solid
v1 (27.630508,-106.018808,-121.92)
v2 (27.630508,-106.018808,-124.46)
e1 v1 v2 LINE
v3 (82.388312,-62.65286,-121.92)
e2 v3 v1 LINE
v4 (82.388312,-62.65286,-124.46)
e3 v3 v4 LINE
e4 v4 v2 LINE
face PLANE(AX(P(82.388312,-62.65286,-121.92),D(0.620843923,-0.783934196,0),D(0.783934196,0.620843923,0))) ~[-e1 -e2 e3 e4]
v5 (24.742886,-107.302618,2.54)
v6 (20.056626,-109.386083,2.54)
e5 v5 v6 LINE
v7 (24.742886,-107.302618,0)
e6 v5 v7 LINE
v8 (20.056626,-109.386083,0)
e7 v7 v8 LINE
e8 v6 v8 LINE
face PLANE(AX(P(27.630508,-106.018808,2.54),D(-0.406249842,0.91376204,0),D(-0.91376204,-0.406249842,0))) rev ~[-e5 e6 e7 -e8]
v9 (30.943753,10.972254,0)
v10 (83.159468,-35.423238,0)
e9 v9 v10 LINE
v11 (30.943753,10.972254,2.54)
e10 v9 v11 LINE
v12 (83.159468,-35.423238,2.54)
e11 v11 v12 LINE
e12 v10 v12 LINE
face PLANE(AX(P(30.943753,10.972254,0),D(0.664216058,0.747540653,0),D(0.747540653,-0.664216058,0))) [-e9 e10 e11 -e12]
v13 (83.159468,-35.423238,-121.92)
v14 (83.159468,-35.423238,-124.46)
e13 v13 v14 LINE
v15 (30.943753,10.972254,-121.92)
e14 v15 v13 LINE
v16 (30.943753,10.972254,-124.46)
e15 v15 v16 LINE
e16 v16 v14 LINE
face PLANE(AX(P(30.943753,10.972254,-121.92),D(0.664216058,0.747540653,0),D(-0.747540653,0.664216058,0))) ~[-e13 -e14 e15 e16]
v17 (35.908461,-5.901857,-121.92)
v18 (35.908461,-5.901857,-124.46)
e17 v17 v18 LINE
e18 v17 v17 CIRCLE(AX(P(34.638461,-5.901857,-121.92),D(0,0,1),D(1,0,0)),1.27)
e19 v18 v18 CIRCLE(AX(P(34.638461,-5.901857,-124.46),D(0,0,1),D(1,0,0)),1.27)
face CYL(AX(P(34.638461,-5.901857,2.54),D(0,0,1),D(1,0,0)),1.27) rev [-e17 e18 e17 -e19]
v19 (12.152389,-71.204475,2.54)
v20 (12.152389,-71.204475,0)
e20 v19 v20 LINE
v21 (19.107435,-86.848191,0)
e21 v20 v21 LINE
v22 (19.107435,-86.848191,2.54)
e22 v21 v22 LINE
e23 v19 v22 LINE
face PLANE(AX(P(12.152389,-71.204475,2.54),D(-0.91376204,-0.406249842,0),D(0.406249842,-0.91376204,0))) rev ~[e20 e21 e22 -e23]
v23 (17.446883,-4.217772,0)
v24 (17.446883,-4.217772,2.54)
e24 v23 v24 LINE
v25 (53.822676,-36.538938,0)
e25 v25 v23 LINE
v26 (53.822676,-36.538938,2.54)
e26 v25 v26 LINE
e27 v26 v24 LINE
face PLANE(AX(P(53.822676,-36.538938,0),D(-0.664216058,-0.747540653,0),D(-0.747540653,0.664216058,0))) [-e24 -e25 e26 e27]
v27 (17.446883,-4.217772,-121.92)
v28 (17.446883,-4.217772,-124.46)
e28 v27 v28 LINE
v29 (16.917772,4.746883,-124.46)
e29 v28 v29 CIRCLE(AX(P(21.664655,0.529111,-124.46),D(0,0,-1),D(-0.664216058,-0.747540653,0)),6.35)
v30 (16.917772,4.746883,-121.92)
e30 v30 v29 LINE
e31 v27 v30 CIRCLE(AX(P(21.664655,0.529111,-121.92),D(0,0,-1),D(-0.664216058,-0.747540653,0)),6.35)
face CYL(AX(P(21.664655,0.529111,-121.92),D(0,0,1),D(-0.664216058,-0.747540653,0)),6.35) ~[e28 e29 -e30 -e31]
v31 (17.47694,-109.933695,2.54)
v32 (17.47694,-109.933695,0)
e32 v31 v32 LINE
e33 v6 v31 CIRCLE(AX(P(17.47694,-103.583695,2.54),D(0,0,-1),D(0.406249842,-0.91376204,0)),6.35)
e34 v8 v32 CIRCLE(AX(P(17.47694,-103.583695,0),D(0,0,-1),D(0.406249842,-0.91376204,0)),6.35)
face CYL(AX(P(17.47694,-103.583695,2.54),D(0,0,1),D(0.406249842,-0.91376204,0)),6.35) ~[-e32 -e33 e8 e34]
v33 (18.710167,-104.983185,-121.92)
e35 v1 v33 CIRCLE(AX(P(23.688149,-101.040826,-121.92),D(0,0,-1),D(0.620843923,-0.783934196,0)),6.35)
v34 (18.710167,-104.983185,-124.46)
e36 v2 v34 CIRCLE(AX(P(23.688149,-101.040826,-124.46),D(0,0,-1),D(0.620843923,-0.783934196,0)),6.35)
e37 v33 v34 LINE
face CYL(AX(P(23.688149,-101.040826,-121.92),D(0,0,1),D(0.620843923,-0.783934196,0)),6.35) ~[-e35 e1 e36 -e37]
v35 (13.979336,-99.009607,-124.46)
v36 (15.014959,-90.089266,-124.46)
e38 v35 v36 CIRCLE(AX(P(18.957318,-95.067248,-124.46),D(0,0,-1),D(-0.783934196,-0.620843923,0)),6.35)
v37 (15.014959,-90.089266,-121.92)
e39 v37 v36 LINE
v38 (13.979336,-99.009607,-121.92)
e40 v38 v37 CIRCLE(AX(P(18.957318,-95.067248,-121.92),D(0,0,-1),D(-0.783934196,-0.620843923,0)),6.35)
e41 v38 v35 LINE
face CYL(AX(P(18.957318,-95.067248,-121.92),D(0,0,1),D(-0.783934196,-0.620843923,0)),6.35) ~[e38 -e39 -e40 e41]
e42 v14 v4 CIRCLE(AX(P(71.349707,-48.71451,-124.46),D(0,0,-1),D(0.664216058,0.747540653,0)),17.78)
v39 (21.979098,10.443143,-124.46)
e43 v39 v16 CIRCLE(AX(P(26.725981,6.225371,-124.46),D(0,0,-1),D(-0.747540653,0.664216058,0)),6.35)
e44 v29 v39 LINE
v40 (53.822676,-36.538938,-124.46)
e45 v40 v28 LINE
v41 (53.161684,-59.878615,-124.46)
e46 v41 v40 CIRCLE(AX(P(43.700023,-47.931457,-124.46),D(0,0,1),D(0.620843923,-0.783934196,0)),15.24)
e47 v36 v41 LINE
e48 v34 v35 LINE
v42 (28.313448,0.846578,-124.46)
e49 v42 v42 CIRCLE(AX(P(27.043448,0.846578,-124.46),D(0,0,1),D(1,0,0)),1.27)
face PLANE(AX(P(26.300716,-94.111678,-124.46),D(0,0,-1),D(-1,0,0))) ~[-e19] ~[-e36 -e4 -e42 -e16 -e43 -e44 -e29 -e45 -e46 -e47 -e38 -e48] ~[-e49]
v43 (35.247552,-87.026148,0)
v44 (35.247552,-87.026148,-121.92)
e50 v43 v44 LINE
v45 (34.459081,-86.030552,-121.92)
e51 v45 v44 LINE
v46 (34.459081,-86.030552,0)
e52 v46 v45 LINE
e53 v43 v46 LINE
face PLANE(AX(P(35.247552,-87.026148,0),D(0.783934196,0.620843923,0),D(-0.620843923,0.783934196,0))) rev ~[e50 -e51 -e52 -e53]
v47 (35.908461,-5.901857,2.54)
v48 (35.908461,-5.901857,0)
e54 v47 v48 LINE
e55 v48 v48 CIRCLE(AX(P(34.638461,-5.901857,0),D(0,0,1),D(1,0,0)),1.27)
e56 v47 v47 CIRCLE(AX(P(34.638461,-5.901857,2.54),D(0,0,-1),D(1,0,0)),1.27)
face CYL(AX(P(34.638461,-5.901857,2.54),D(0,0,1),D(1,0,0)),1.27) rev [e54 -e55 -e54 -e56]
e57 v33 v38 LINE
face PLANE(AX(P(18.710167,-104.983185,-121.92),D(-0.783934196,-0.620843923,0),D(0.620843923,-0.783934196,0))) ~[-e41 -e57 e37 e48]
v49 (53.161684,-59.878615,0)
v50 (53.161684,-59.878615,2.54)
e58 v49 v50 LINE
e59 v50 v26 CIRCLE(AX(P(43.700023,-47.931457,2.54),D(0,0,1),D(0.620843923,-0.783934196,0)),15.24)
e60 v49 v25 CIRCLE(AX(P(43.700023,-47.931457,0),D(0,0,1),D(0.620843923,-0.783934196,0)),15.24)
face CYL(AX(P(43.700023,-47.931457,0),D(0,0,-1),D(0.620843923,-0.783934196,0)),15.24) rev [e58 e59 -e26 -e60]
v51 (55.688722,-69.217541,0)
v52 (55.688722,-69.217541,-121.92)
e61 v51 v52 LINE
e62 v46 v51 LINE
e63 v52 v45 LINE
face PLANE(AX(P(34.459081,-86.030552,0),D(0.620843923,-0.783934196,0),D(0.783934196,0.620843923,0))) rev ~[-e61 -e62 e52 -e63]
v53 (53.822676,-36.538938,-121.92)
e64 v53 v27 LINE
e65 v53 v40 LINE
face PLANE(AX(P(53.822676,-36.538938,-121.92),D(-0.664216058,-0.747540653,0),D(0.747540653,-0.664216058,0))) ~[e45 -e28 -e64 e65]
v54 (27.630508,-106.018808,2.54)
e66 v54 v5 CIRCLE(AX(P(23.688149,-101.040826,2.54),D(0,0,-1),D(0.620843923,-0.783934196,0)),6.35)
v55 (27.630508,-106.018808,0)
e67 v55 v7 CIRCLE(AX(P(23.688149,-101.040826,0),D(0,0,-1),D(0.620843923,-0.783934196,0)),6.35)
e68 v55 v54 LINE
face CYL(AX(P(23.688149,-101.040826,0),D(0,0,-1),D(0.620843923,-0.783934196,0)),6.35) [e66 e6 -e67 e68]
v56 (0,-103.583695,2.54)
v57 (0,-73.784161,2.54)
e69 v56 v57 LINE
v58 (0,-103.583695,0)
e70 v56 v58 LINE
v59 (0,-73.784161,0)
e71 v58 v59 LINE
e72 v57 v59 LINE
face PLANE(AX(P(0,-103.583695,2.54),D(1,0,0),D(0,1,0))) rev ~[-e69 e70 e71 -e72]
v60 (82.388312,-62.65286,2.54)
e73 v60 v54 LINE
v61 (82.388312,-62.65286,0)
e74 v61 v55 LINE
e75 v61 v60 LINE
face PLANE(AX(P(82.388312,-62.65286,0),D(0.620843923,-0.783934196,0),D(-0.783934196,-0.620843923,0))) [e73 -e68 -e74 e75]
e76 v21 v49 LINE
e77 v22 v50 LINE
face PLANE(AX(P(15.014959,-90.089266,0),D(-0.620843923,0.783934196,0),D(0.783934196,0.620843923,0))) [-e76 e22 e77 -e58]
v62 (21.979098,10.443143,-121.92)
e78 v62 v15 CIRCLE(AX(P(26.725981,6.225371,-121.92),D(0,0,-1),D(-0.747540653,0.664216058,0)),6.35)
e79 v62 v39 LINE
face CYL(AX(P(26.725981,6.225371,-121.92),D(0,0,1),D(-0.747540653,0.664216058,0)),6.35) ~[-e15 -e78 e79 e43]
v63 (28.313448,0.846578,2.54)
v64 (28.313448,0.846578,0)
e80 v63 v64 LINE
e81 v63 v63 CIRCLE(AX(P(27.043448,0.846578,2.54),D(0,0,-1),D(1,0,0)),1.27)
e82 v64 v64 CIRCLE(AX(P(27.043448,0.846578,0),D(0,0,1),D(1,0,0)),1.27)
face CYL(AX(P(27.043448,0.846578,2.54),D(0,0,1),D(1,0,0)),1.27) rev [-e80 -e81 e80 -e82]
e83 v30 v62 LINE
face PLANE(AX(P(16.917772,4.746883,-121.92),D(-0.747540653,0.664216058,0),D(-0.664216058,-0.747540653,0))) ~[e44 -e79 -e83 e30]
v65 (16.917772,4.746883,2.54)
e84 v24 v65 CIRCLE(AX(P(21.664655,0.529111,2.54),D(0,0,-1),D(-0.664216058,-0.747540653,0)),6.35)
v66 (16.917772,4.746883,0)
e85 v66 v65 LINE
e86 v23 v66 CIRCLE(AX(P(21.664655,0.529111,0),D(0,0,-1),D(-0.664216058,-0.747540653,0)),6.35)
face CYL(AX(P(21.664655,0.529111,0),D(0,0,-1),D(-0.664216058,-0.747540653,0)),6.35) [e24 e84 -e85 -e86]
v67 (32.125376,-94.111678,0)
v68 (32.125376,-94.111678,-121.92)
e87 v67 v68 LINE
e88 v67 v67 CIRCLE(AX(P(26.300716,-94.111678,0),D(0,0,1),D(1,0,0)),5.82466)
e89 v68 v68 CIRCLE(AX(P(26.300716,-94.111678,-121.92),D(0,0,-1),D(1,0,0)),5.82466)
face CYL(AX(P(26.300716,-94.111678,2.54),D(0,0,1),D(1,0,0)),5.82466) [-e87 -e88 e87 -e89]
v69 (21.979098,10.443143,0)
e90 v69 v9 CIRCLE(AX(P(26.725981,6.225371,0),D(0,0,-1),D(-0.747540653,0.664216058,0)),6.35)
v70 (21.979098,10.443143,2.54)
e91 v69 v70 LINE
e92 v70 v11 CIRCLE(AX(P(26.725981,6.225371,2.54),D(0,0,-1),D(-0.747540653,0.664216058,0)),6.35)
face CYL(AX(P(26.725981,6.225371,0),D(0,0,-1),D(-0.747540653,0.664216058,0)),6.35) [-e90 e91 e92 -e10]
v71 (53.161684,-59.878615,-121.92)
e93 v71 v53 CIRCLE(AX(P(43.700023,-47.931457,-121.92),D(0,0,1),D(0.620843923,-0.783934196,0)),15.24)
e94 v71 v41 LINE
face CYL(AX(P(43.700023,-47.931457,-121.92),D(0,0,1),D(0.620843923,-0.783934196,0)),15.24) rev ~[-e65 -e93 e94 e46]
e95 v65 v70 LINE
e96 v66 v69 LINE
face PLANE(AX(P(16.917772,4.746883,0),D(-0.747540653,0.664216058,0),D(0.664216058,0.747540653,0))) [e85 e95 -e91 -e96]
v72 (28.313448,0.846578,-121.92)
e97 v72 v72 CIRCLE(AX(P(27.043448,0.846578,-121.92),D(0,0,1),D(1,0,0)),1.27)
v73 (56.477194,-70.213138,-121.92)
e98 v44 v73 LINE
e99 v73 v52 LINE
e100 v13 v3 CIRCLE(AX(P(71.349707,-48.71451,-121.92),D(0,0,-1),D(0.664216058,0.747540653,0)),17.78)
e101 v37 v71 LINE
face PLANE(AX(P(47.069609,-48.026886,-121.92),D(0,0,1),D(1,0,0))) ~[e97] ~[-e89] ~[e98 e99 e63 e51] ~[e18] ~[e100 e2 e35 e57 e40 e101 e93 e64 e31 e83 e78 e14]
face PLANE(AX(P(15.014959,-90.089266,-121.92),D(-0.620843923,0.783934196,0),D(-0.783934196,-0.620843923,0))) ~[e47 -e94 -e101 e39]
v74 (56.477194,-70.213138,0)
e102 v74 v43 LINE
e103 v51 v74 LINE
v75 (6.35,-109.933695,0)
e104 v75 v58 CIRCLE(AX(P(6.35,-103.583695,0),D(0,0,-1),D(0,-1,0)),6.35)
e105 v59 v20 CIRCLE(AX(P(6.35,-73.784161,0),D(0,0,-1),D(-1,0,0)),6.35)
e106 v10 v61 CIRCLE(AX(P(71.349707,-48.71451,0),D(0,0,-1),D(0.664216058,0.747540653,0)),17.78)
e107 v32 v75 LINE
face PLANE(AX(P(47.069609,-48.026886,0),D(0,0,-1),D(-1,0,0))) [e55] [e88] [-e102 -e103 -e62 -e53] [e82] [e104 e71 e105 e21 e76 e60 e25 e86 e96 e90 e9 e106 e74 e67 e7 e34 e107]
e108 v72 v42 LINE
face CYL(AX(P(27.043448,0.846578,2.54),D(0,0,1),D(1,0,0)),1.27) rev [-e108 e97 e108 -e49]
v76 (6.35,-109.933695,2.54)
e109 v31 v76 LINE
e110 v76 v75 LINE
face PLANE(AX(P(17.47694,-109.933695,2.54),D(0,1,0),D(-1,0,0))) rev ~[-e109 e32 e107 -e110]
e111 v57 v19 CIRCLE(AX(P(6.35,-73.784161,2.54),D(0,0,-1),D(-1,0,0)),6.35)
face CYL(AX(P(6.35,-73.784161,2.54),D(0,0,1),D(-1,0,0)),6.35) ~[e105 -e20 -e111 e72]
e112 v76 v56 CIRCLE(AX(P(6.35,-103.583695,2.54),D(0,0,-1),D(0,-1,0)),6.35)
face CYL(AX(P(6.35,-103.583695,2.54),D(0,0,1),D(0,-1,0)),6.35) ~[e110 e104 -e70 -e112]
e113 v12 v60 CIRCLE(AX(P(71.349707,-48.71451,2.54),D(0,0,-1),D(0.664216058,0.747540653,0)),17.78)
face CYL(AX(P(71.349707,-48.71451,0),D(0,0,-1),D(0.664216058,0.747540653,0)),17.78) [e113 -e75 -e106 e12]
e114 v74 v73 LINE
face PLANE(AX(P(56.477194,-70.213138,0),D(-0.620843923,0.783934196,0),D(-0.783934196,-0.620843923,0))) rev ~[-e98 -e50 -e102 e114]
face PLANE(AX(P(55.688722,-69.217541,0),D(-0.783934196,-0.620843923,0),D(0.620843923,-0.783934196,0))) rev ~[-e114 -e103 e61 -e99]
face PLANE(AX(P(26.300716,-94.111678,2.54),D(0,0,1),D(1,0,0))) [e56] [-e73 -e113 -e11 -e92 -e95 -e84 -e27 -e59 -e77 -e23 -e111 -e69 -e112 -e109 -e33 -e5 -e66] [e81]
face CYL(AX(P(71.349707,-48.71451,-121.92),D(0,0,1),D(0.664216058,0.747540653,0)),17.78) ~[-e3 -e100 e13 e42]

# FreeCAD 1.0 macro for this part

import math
import FreeCAD as App
import Part
import Sketcher
Q = App.Units.Quantity

doc = App.newDocument("Part")
body = doc.addObject("PartDesign::Body", "Body")

# Sketch on XY plane
sketch1 = body.newObject("Sketcher::SketchObject", "Sketch")
sketch1.AttachmentSupport = (doc.getObject("XY_Plane"), [""])
sketch1.MapMode = "FlatFace"
sketch1.addGeometry([
    Part.LineSegment(App.Vector(83, -35, 0), App.Vector(31, 11, 0)),  # 0
    Part.ArcOfCircle(Part.Circle(App.Vector(27, 6, 0), App.Vector(0, 0, 1), 6), math.radians(48), math.radians(138)),  # 1
    Part.LineSegment(App.Vector(22, 10, 0), App.Vector(17, 5, 0)),  # 2
    Part.ArcOfCircle(Part.Circle(App.Vector(22, 1, 0), App.Vector(0, 0, 1), 6), math.radians(138), math.radians(228)),  # 3
    Part.LineSegment(App.Vector(17, -4, 0), App.Vector(54, -37, 0)),  # 4
    Part.ArcOfCircle(Part.Circle(App.Vector(44, -48, 0), App.Vector(0, 0, 1), 15), math.radians(-52), math.radians(48)),  # 5
    Part.LineSegment(App.Vector(53, -60, 0), App.Vector(15, -90, 0)),  # 6
    Part.ArcOfCircle(Part.Circle(App.Vector(19, -95, 0), App.Vector(0, 0, 1), 6), math.radians(128), math.radians(218)),  # 7
    Part.LineSegment(App.Vector(14, -99, 0), App.Vector(19, -105, 0)),  # 8
    Part.ArcOfCircle(Part.Circle(App.Vector(24, -101, 0), App.Vector(0, 0, 1), 6), math.radians(-142), math.radians(-52)),  # 9
    Part.LineSegment(App.Vector(28, -106, 0), App.Vector(82, -63, 0)),  # 10
    Part.ArcOfCircle(Part.Circle(App.Vector(71, -49, 0), App.Vector(0, 0, 1), 18), math.radians(-52), math.radians(48)),  # 11
], False)
sketch1.addConstraint([
    Sketcher.Constraint("Tangent", 0, 2, 1, 1),
    Sketcher.Constraint("Tangent", 1, 2, 2, 1),
    Sketcher.Constraint("Tangent", 2, 2, 3, 1),
    Sketcher.Constraint("Tangent", 3, 2, 4, 1),
    Sketcher.Constraint("Tangent", 4, 2, 5, 2),
    Sketcher.Constraint("Tangent", 5, 1, 6, 1),
    Sketcher.Constraint("Tangent", 6, 2, 7, 1),
    Sketcher.Constraint("Tangent", 7, 2, 8, 1),
    Sketcher.Constraint("Tangent", 8, 2, 9, 1),
    Sketcher.Constraint("Tangent", 9, 2, 10, 1),
    Sketcher.Constraint("Tangent", 10, 2, 11, 1),
    Sketcher.Constraint("Tangent", 11, 2, 0, 1),
    Sketcher.Constraint("Equal", 1, 3),
    Sketcher.Constraint("Equal", 3, 7),
    Sketcher.Constraint("Equal", 7, 9),
    Sketcher.Constraint("Perpendicular", 0, 2),
    Sketcher.Constraint("Perpendicular", 2, 4),
    Sketcher.Constraint("Perpendicular", 6, 8),
    Sketcher.Constraint("Perpendicular", 8, 10),
    Sketcher.Constraint("Equal", 4, 6),
    Sketcher.Constraint("Equal", 2, 8),
    Sketcher.Constraint("Radius", 5, Q("0.6 in")),
    Sketcher.Constraint("Radius", 11, Q("0.7 in")),
    Sketcher.Constraint("Radius", 1, Q("0.25 in")),
    Sketcher.Constraint("Distance", 2, Q("0.3 in")),
    Sketcher.Constraint("Distance", 0, Q("2.75 in")),
    Sketcher.Constraint("DistanceX", -1, 1, 1, 2, 21.979098),
    Sketcher.Constraint("DistanceX", 3, 3, 0, 2, 9.279098),
    Sketcher.Constraint("DistanceY", 7, 3, 0, 2, 106.039502),
    Sketcher.Constraint("DistanceY", -1, 1, 1, 3, 6.225371),
])
pad1 = body.newObject("PartDesign::Pad", "Pad")
pad1.Profile = sketch1
pad1.Length = Q("0.1 in")

# Sketch on XY plane
sketch2 = body.newObject("Sketcher::SketchObject", "Sketch001")
sketch2.AttachmentSupport = (doc.getObject("XY_Plane"), [""])
sketch2.MapMode = "FlatFace"
sketch2.AttachmentOffset = App.Placement(App.Vector(0, 0, 0.1 * 25.4), App.Rotation())
sketch2.addGeometry(Part.Circle(App.Vector(26, -94, 0), App.Vector(0, 0, 1), 6), False)
sketch2.addConstraint([
    Sketcher.Constraint("Diameter", 0, 11.649321),
    Sketcher.Constraint("DistanceY", 0, 3, -1, 1, 94.111678),
    Sketcher.Constraint("DistanceX", -1, 1, 0, 3, 26.300716),
])
pad2 = body.newObject("PartDesign::Pad", "Pad001")
pad2.Profile = sketch2
pad2.Length = Q("2.5 in")
pad2.Reversed = True
doc.recompute()

datumplane = body.newObject("PartDesign::Plane", "DatumPlane")
datumplane.AttachmentSupport = (doc.getObject("XY_Plane"), [""])
datumplane.MapMode = "FlatFace"
datumplane.AttachmentOffset = App.Placement(App.Vector(0, 0, -2.4 * 25.4), App.Rotation())
mirrored = body.newObject("PartDesign::Mirrored", "Mirrored")
mirrored.Originals = [pad1, pad2]
mirrored.MirrorPlane = (datumplane, [""])
body.Tip = mirrored

# Sketch on XY plane
sketch3 = body.newObject("Sketcher::SketchObject", "Sketch002")
sketch3.AttachmentSupport = (doc.getObject("XY_Plane"), [""])
sketch3.MapMode = "FlatFace"
sketch3.addGeometry([
    Part.LineSegment(App.Vector(35.247552, -87.026148, 0), App.Vector(34.459081, -86.030552, 0)),
    Part.LineSegment(App.Vector(34.459081, -86.030552, 0), App.Vector(55.688722, -69.217541, 0)),
    Part.LineSegment(App.Vector(55.688722, -69.217541, 0), App.Vector(56.477194, -70.213138, 0)),
    Part.LineSegment(App.Vector(56.477194, -70.213138, 0), App.Vector(35.247552, -87.026148, 0)),
], False)
sketch3.addConstraint([
    Sketcher.Constraint("Coincident", 0, 2, 1, 1),
    Sketcher.Constraint("Coincident", 1, 2, 2, 1),
    Sketcher.Constraint("Coincident", 2, 2, 3, 1),
    Sketcher.Constraint("Coincident", 3, 2, 0, 1),
    Sketcher.Constraint("Perpendicular", 0, 1),
    Sketcher.Constraint("Perpendicular", 1, 2),
    Sketcher.Constraint("Perpendicular", 2, 3),
    Sketcher.Constraint("Distance", 0, Q("0.05 in")),
    Sketcher.Constraint("DistanceY", 1, 2, -1, 1, Q("2.7251 in")),
    Sketcher.Constraint("DistanceX", -1, 1, 0, 2, 34.459081),
    Sketcher.Constraint("DistanceY", 0, 2, -1, 1, 86.030552),
    Sketcher.Constraint("DistanceY", 3, 2, -1, 1, 87.026148),
])
pad3 = body.newObject("PartDesign::Pad", "Pad002")
pad3.Profile = sketch3
pad3.Length = Q("4.86 in")
pad3.Reversed = True

# Sketch on XY plane
sketch4 = body.newObject("Sketcher::SketchObject", "Sketch003")
sketch4.AttachmentSupport = (doc.getObject("XY_Plane"), [""])
sketch4.MapMode = "FlatFace"
sketch4.AttachmentOffset = App.Placement(App.Vector(0, 0, 0.1 * 25.4), App.Rotation())
sketch4.addGeometry([
    Part.Circle(App.Vector(27, 0.8, 0), App.Vector(0, 0, 1), 1.3),
    Part.Circle(App.Vector(34.6, -5.9, 0), App.Vector(0, 0, 1), 1.3),
], False)
sketch4.addConstraint([
    Sketcher.Constraint("Equal", 0, 1),
    Sketcher.Constraint("Diameter", 0, Q("0.1 in")),
    Sketcher.Constraint("DistanceX", -1, 1, 0, 3, 27.043448),
    Sketcher.Constraint("DistanceX", -1, 1, 1, 3, 34.638461),
    Sketcher.Constraint("DistanceY", -1, 1, 0, 3, 0.846578),
    Sketcher.Constraint("DistanceY", 1, 3, -1, 1, 5.901857),
])
pocket1 = body.newObject("PartDesign::Pocket", "Pocket")
pocket1.Profile = sketch4
pocket1.Type = "ThroughAll"

# Sketch on XY plane
sketch5 = body.newObject("Sketcher::SketchObject", "Sketch004")
sketch5.AttachmentSupport = (doc.getObject("XY_Plane"), [""])
sketch5.MapMode = "FlatFace"
sketch5.AttachmentOffset = App.Placement(App.Vector(0, 0, 0.1 * 25.4), App.Rotation())
sketch5.addGeometry([
    Part.LineSegment(App.Vector(20.1, -109.4, 0), App.Vector(27.6, -106, 0)),  # 0
    Part.LineSegment(App.Vector(27.6, -106, 0), App.Vector(12.2, -71.2, 0)),  # 1
    Part.ArcOfCircle(Part.Circle(App.Vector(6.3, -73.8, 0), App.Vector(0, 0, 1), 6.3), math.radians(24), math.radians(180)),  # 2
    Part.LineSegment(App.Vector(0, -73.8, 0), App.Vector(0, -103.6, 0)),  # 3
    Part.ArcOfCircle(Part.Circle(App.Vector(6.3, -103.6, 0), App.Vector(0, 0, 1), 6.3), math.radians(180), math.radians(270)),  # 4
    Part.LineSegment(App.Vector(6.3, -109.9, 0), App.Vector(17.5, -109.9, 0)),  # 5
    Part.ArcOfCircle(Part.Circle(App.Vector(17.5, -103.6, 0), App.Vector(0, 0, 1), 6.4), math.radians(-90), math.radians(-66)),  # 6
], False)
sketch5.addConstraint([
    Sketcher.Constraint("Coincident", 0, 2, 1, 1),
    Sketcher.Constraint("Tangent", 1, 2, 2, 1),
    Sketcher.Constraint("Tangent", 2, 2, 3, 1),
    Sketcher.Constraint("Tangent", 3, 2, 4, 1),
    Sketcher.Constraint("Tangent", 4, 2, 5, 1),
    Sketcher.Constraint("Tangent", 5, 2, 6, 1),
    Sketcher.Constraint("Tangent", 6, 2, 0, 1),
    Sketcher.Constraint("Vertical", 3),
    Sketcher.Constraint("Horizontal", 5),
    Sketcher.Constraint("Equal", 2, 4),
    Sketcher.Constraint("Equal", 4, 6),
    Sketcher.Constraint("PointOnObject", 2, 2, -2),
    Sketcher.Constraint("Perpendicular", 0, 1),
    Sketcher.Constraint("Radius", 2, Q("0.25 in")),
    Sketcher.Constraint("Distance", 1, Q("1.5 in")),
    Sketcher.Constraint("DistanceX", 5, 1, 5, 2, 11.12694),
    Sketcher.Constraint("Distance", 0, 8.28868),
    Sketcher.Constraint("DistanceY", 2, 3, -1, 1, 73.784161),
])
pad4 = body.newObject("PartDesign::Pad", "Pad003")
pad4.Profile = sketch5
pad4.Length = Q("0.1 in")
pad4.Reversed = True

doc.recompute()
